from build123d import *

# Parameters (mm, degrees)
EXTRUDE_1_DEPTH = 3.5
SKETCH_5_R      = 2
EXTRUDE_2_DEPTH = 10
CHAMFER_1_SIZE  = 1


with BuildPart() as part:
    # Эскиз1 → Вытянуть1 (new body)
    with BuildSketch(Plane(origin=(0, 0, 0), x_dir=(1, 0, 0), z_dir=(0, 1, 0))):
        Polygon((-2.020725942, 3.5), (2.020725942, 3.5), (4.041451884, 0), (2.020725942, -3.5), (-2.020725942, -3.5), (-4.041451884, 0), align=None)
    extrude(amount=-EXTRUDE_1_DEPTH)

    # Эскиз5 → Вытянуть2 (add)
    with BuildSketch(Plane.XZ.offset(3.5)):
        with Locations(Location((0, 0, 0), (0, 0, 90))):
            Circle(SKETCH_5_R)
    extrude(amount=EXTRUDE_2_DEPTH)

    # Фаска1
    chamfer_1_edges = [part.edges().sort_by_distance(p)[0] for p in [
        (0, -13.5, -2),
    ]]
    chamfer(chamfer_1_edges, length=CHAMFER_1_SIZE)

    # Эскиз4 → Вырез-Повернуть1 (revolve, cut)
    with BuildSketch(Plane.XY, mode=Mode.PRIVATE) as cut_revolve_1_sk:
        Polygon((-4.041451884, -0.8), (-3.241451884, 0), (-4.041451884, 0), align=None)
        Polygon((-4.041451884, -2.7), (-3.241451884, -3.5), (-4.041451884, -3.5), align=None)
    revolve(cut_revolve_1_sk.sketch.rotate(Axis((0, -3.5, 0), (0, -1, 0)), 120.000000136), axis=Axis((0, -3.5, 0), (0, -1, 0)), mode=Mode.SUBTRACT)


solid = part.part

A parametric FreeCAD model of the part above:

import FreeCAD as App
import Part
import Sketcher

V = App.Vector
Q = App.Units.Quantity


def edges_at(feature, points):
    """Names of the edges that pass closest to the given points."""
    edges = feature.Shape.Edges
    near = lambda p: min(range(len(edges)), key=lambda i: edges[i].distToShape(Part.Vertex(*p))[0])
    return sorted({f"Edge{near(p) + 1}" for p in points})

doc = App.newDocument("Part")
body = doc.addObject("PartDesign::Body", "Body")

# Sketch on XZ plane
sketch1 = doc.addObject("Sketcher::SketchObject", "Sketch")
body.addObject(sketch1)
sketch1.AttachmentSupport = (doc.XZ_Plane, [""])
sketch1.MapMode = "FlatFace"
sketch1.addGeometry([
    Part.LineSegment(V(2, -3.5, 0), V(-2, -3.5, 0)),  # 0
    Part.LineSegment(V(-2, -3.5, 0), V(-4, 0, 0)),  # 1
    Part.LineSegment(V(-4, 0, 0), V(-2, 3.5, 0)),  # 2
    Part.LineSegment(V(-2, 3.5, 0), V(2, 3.5, 0)),  # 3
    Part.LineSegment(V(2, 3.5, 0), V(4, 0, 0)),  # 4
    Part.LineSegment(V(4, 0, 0), V(2, -3.5, 0)),  # 5
], False)
sketch1.addConstraint([
    Sketcher.Constraint("Coincident", 0, 2, 1, 1),
    Sketcher.Constraint("Coincident", 1, 2, 2, 1),
    Sketcher.Constraint("Coincident", 2, 2, 3, 1),
    Sketcher.Constraint("Coincident", 3, 2, 4, 1),
    Sketcher.Constraint("Coincident", 4, 2, 5, 1),
    Sketcher.Constraint("Coincident", 5, 2, 0, 1),
    Sketcher.Constraint("Horizontal", 0),
    Sketcher.Constraint("Horizontal", 3),
    Sketcher.Constraint("Symmetric", 0, 2, 3, 2, -1, 1),
    Sketcher.Constraint("Symmetric", 1, 2, 4, 2, -1, 1),
    Sketcher.Constraint("PointOnObject", 1, 2, -1),
    Sketcher.Constraint("Parallel", 2, 5),
    Sketcher.Constraint("Vertical", 0, 2, 2, 2),
    Sketcher.Constraint("Angle", 1, Q("120 deg")),
    Sketcher.Constraint("DistanceY", 0, 2, 2, 2, Q("7 mm")),
    Sketcher.Constraint("DistanceX", 0, 2, 0, 1, Q("4.041452 mm")),
])
pad1 = doc.addObject("PartDesign::Pad", "Pad")
body.addObject(pad1)
pad1.Profile = sketch1
pad1.Length = 3.5

# Sketch on XZ plane
sketch2 = doc.addObject("Sketcher::SketchObject", "Sketch001")
body.addObject(sketch2)
sketch2.AttachmentSupport = (doc.XZ_Plane, [""])
sketch2.MapMode = "FlatFace"
sketch2.AttachmentOffset = App.Placement(V(0, 0, 3.5), App.Rotation())
sketch2.addGeometry(Part.Circle(V(0, 0, 0), V(0, 0, 1), 2), False)
sketch2.addConstraint([
    Sketcher.Constraint("Coincident", 0, 3, -1, 1),
    Sketcher.Constraint("Diameter", 0, Q("4 mm")),
])
pad2 = doc.addObject("PartDesign::Pad", "Pad001")
body.addObject(pad2)
pad2.Profile = sketch2
pad2.Length = 10
doc.recompute()

chamfer = doc.addObject("PartDesign::Chamfer", "Chamfer")
body.addObject(chamfer)
chamfer.Base = (pad2, edges_at(pad2, [(0, -13.5, -2)]))
chamfer.Size = 1

# Sketch on XY plane
sketch3 = doc.addObject("Sketcher::SketchObject", "Sketch002")
body.addObject(sketch3)
sketch3.AttachmentSupport = (doc.XY_Plane, [""])
sketch3.MapMode = "FlatFace"
sketch3.addGeometry([
    Part.LineSegment(V(-4, -0.8, 0), V(-3.2, 0, 0)),  # 0
    Part.LineSegment(V(-3.2, 0, 0), V(-4, 0, 0)),  # 1
    Part.LineSegment(V(-4, 0, 0), V(-4, -0.8, 0)),  # 2
    Part.LineSegment(V(-3.2, -3.5, 0), V(-4, -2.7, 0)),  # 3
    Part.LineSegment(V(-4, -2.7, 0), V(-4, -3.5, 0)),  # 4
    Part.LineSegment(V(-4, -3.5, 0), V(-3.2, -3.5, 0)),  # 5
], False)
sketch3.addConstraint([
    Sketcher.Constraint("Coincident", 0, 2, 1, 1),
    Sketcher.Constraint("Coincident", 1, 2, 2, 1),
    Sketcher.Constraint("Coincident", 2, 2, 0, 1),
    Sketcher.Constraint("Coincident", 3, 2, 4, 1),
    Sketcher.Constraint("Coincident", 4, 2, 5, 1),
    Sketcher.Constraint("Coincident", 5, 2, 3, 1),
    Sketcher.Constraint("Horizontal", 1),
    Sketcher.Constraint("Vertical", 2),
    Sketcher.Constraint("Vertical", 4),
    Sketcher.Constraint("Horizontal", 5),
    Sketcher.Constraint("PointOnObject", 0, 2, -1),
    Sketcher.Constraint("Perpendicular", 0, 3),
    Sketcher.Constraint("Vertical", 2, 2, 3, 2),
    Sketcher.Constraint("Vertical", 0, 2, 5, 2),
    Sketcher.Constraint("Equal", 5, 2),
    Sketcher.Constraint("DistanceX", 1, 2, 1, 1, Q("0.8 mm")),
    Sketcher.Constraint("DistanceY", 3, 2, -1, 1, Q("2.7 mm")),
    Sketcher.Constraint("DistanceX", 0, 2, -1, 1, Q("3.241452 mm")),
])
groove = doc.addObject("PartDesign::Groove", "Groove")
body.addObject(groove)
groove.Profile = sketch3
groove.ReferenceAxis = (sketch3, ["V_Axis"])
groove.Angle = 360

doc.recompute()
